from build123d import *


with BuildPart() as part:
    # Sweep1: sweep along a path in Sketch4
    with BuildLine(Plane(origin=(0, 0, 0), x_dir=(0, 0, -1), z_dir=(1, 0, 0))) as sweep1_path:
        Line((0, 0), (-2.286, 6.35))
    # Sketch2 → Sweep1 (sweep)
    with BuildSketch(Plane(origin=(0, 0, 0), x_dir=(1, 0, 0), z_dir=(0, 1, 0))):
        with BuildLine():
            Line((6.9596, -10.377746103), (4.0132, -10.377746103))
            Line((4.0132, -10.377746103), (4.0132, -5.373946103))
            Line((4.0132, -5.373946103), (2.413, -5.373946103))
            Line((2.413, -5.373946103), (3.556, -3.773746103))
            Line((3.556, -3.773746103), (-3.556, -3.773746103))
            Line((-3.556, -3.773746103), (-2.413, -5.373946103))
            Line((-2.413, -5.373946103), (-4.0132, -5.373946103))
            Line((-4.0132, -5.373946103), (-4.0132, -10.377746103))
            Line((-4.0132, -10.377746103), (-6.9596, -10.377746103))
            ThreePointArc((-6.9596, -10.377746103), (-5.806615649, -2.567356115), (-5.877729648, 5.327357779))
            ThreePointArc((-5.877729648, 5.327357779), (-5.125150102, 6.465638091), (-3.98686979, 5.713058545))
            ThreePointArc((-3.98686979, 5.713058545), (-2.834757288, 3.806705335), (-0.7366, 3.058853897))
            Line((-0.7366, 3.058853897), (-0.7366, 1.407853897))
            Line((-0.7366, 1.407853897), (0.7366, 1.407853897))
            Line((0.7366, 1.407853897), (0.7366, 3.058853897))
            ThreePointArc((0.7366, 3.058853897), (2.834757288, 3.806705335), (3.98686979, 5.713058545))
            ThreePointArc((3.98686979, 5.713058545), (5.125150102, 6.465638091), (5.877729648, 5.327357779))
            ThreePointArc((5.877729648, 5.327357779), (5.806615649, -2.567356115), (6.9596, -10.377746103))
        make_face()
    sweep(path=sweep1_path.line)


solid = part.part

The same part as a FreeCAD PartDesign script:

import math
import FreeCAD as App
import Part
import Sketcher
from FreeCAD import Vector
Q = App.Units.Quantity

doc = App.newDocument("Part")
body = doc.addObject("PartDesign::Body", "Body")

sketch1 = doc.addObject("Sketcher::SketchObject", "Sketch")
body.addObject(sketch1)
sketch1.AttachmentSupport = (doc.XZ_Plane, [""])
sketch1.MapMode = "FlatFace"
sketch1.addGeometry(Part.LineSegment(Vector(4, 10.4, 0), Vector(7, 10.4, 0)), False)
sketch1.addGeometry(Part.ArcOfCircle(Part.Circle(Vector(56.5, -0.9, 0), Vector(0, 0, 1), 50.8), math.radians(167.15), math.radians(184.97)), False)
sketch1.addGeometry(Part.ArcOfCircle(Part.Circle(Vector(4.9, -5.5, 0), Vector(0, 0, 1), 1), math.radians(-168), math.radians(12)), False)
sketch1.addGeometry(Part.ArcOfCircle(Part.Circle(Vector(0.7, -6.4, 0), Vector(0, 0, 1), 3.3), math.radians(12), math.radians(90)), False)
sketch1.addGeometry(Part.LineSegment(Vector(0.7, -3.1, 0), Vector(0.7, -1.4, 0)), False)
sketch1.addGeometry(Part.LineSegment(Vector(0.7, -1.4, 0), Vector(-0.7, -1.4, 0)), False)
sketch1.addGeometry(Part.LineSegment(Vector(-0.7, -1.4, 0), Vector(-0.7, -3.1, 0)), False)
sketch1.addGeometry(Part.ArcOfCircle(Part.Circle(Vector(-0.7, -6.4, 0), Vector(0, 0, 1), 3.3), math.radians(90), math.radians(168)), False)
sketch1.addGeometry(Part.ArcOfCircle(Part.Circle(Vector(-4.9, -5.5, 0), Vector(0, 0, 1), 1), math.radians(168), math.radians(348)), False)
sketch1.addGeometry(Part.ArcOfCircle(Part.Circle(Vector(-56.5, -0.9, 0), Vector(0, 0, 1), 50.8), math.radians(-4.97), math.radians(12.85)), False)
sketch1.addGeometry(Part.LineSegment(Vector(-7, 10.4, 0), Vector(-4, 10.4, 0)), False)
sketch1.addGeometry(Part.LineSegment(Vector(-4, 10.4, 0), Vector(-4, 5.4, 0)), False)
sketch1.addGeometry(Part.LineSegment(Vector(-4, 5.4, 0), Vector(-2.4, 5.4, 0)), False)
sketch1.addGeometry(Part.LineSegment(Vector(-2.4, 5.4, 0), Vector(-3.6, 3.8, 0)), False)
sketch1.addGeometry(Part.LineSegment(Vector(-3.6, 3.8, 0), Vector(3.6, 3.8, 0)), False)
sketch1.addGeometry(Part.LineSegment(Vector(3.6, 3.8, 0), Vector(2.4, 5.4, 0)), False)
sketch1.addGeometry(Part.LineSegment(Vector(2.4, 5.4, 0), Vector(4, 5.4, 0)), False)
sketch1.addGeometry(Part.LineSegment(Vector(4, 5.4, 0), Vector(4, 10.4, 0)), False)
sketch1.addConstraint(Sketcher.Constraint("Coincident", 0, 2, 1, 1))
sketch1.addConstraint(Sketcher.Constraint("Coincident", 1, 2, 2, 2))
sketch1.addConstraint(Sketcher.Constraint("Tangent", 2, 1, 3, 1))
sketch1.addConstraint(Sketcher.Constraint("Coincident", 3, 2, 4, 1))
sketch1.addConstraint(Sketcher.Constraint("Coincident", 4, 2, 5, 1))
sketch1.addConstraint(Sketcher.Constraint("Coincident", 5, 2, 6, 1))
sketch1.addConstraint(Sketcher.Constraint("Coincident", 6, 2, 7, 1))
sketch1.addConstraint(Sketcher.Constraint("Tangent", 7, 2, 8, 2))
sketch1.addConstraint(Sketcher.Constraint("Coincident", 8, 1, 9, 1))
sketch1.addConstraint(Sketcher.Constraint("Coincident", 9, 2, 10, 1))
sketch1.addConstraint(Sketcher.Constraint("Coincident", 10, 2, 11, 1))
sketch1.addConstraint(Sketcher.Constraint("Coincident", 11, 2, 12, 1))
sketch1.addConstraint(Sketcher.Constraint("Coincident", 12, 2, 13, 1))
sketch1.addConstraint(Sketcher.Constraint("Coincident", 13, 2, 14, 1))
sketch1.addConstraint(Sketcher.Constraint("Coincident", 14, 2, 15, 1))
sketch1.addConstraint(Sketcher.Constraint("Coincident", 15, 2, 16, 1))
sketch1.addConstraint(Sketcher.Constraint("Coincident", 16, 2, 17, 1))
sketch1.addConstraint(Sketcher.Constraint("Coincident", 17, 2, 0, 1))
sketch1.addConstraint(Sketcher.Constraint("Horizontal", 0))
sketch1.addConstraint(Sketcher.Constraint("Vertical", 4))
sketch1.addConstraint(Sketcher.Constraint("Horizontal", 5))
sketch1.addConstraint(Sketcher.Constraint("Vertical", 6))
sketch1.addConstraint(Sketcher.Constraint("Horizontal", 10))
sketch1.addConstraint(Sketcher.Constraint("Vertical", 11))
sketch1.addConstraint(Sketcher.Constraint("Horizontal", 12))
sketch1.addConstraint(Sketcher.Constraint("Horizontal", 14))
sketch1.addConstraint(Sketcher.Constraint("Horizontal", 16))
sketch1.addConstraint(Sketcher.Constraint("Vertical", 17))
sketch1.addConstraint(Sketcher.Constraint("Equal", 3, 7))
sketch1.addConstraint(Sketcher.Constraint("Equal", 2, 8))
sketch1.addConstraint(Sketcher.Constraint("Equal", 1, 9))
sketch1.addConstraint(Sketcher.Constraint("Symmetric", 3, 3, 7, 3, -2))
sketch1.addConstraint(Sketcher.Constraint("Symmetric", 1, 3, 9, 3, -2))
sketch1.addConstraint(Sketcher.Constraint("Symmetric", 12, 2, 15, 2, -2))
sketch1.addConstraint(Sketcher.Constraint("Symmetric", 10, 2, 17, 2, -2))
sketch1.addConstraint(Sketcher.Constraint("Horizontal", 2, 3, 8, 3))
sketch1.addConstraint(Sketcher.Constraint("Vertical", 7, 3, 5, 2))
sketch1.addConstraint(Sketcher.Constraint("Equal", 13, 15))
sketch1.addConstraint(Sketcher.Constraint("Radius", 1, Q("2 in")))
sketch1.addConstraint(Sketcher.Constraint("DistanceX", 14, 1, 14, 2, Q("0.28 in")))
sketch1.addConstraint(Sketcher.Constraint("DistanceX", 0, 1, 0, 2, Q("0.116 in")))
sketch1.addConstraint(Sketcher.Constraint("DistanceX", 5, 2, 5, 1, Q("0.058 in")))
sketch1.addConstraint(Sketcher.Constraint("DistanceX", 12, 1, 12, 2, Q("0.063 in")))
sketch1.addConstraint(Sketcher.Constraint("DistanceY", 4, 1, 4, 2, Q("0.065 in")))
sketch1.addConstraint(Sketcher.Constraint("DistanceY", 11, 2, 11, 1, Q("0.197 in")))
sketch1.addConstraint(Sketcher.Constraint("Radius", 2, 0.964898))
sketch1.addConstraint(Sketcher.Constraint("Radius", 3, 3.3172))
sketch1.addConstraint(Sketcher.Constraint("DistanceY", 13, 2, 10, 2, Q("0.26 in")))
sketch1.addConstraint(Sketcher.Constraint("DistanceX", 12, 2, 15, 2, Q("0.19 in")))
sketch1.addConstraint(Sketcher.Constraint("DistanceX", -1, 1, 3, 3, Q("0.029 in")))
sketch1.addConstraint(Sketcher.Constraint("DistanceY", 5, 2, 9, 2, Q("0.464 in")))
sketch1.addConstraint(Sketcher.Constraint("DistanceX", -1, 1, 2, 3, 4.9323))
sketch1.addConstraint(Sketcher.Constraint("DistanceY", 2, 3, 1, 3, 4.596401))
sketch1.addConstraint(Sketcher.Constraint("DistanceY", 2, 3, -1, 1, 5.520208))

sketch2 = doc.addObject("Sketcher::SketchObject", "Sketch001")
body.addObject(sketch2)
sketch2.Placement = App.Placement(Vector(0, 0, 0), App.Rotation(Vector(0, -0.940887412, -0.338719468), Vector(1, 0, 0), Vector(0, -0.338719468, 0.940887412), "ZXY"))
sketch2.addGeometry(Part.LineSegment(Vector(0, 0, 0), Vector(-7, 0, 0)), False)
sketch2.addConstraint(Sketcher.Constraint("Horizontal", 0))
sketch2.addConstraint(Sketcher.Constraint("Coincident", 0, 1, -1, 1))
sketch2.addConstraint(Sketcher.Constraint("DistanceX", 0, 2, 0, 1, 6.748948))
doc.recompute()

additivepipe = doc.addObject("PartDesign::AdditivePipe", "AdditivePipe")
body.addObject(additivepipe)
additivepipe.Profile = sketch1
additivepipe.Spine = (sketch2, ["Edge1"])

doc.recompute()
